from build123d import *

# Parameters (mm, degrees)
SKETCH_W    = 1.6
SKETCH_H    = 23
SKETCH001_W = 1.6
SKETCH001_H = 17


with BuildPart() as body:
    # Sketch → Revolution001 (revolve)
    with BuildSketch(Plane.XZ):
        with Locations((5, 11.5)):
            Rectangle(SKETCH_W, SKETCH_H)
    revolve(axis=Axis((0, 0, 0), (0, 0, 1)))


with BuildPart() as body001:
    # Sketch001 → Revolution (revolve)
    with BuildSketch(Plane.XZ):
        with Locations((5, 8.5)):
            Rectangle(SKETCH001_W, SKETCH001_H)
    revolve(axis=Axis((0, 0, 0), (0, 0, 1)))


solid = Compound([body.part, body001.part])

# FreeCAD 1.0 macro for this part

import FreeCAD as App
import Part
import Sketcher


def add_polygon(sketch, points):
    """Adds a closed chain of lines whose ends are joined by coincident constraints."""
    first, n = sketch.GeometryCount, len(points)
    for a, b in zip(points, points[1:] + points[:1]):
        sketch.addGeometry(Part.LineSegment(App.Vector(*a, 0), App.Vector(*b, 0)), False)
    for i in range(n):
        sketch.addConstraint(Sketcher.Constraint("Coincident", first + i, 2, first + (i + 1) % n, 1))

doc = App.newDocument("Part")
body = doc.addObject("PartDesign::Body", "Body")

# Sketch on XZ plane
sketch1 = body.newObject("Sketcher::SketchObject", "Sketch")
sketch1.AttachmentSupport = (doc.getObject("XZ_Plane"), [""])
sketch1.MapMode = "FlatFace"
add_polygon(sketch1, [(4.2, 23), (4.2, 0), (5.8, 0), (5.8, 23)])  # lines 0-3
sketch1.addConstraint([
    Sketcher.Constraint("Vertical", 0),
    Sketcher.Constraint("Horizontal", 1),
    Sketcher.Constraint("Vertical", 2),
    Sketcher.Constraint("Horizontal", 3),
    Sketcher.Constraint("PointOnObject", 0, 2, -1),
    Sketcher.Constraint("DistanceY", 0, 2, 0, 1, 23.0),
    Sketcher.Constraint("DistanceX", 1, 1, 1, 2, 1.6),
    Sketcher.Constraint("DistanceX", -1, 1, 0, 2, 4.2),
])
revolution = body.newObject("PartDesign::Revolution", "Revolution")
revolution.Profile = sketch1
revolution.ReferenceAxis = (sketch1, ["V_Axis"])
revolution.Angle = 360
body2 = doc.addObject("PartDesign::Body", "Body001")

# Sketch on XZ plane
sketch2 = body2.newObject("Sketcher::SketchObject", "Sketch001")
sketch2.AttachmentSupport = (doc.getObject("XZ_Plane001"), [""])
sketch2.MapMode = "FlatFace"
add_polygon(sketch2, [(4.2, 17), (4.2, 0), (5.8, 0), (5.8, 17)])  # lines 0-3
sketch2.addConstraint([
    Sketcher.Constraint("Vertical", 0),
    Sketcher.Constraint("Horizontal", 1),
    Sketcher.Constraint("Vertical", 2),
    Sketcher.Constraint("Horizontal", 3),
    Sketcher.Constraint("PointOnObject", 0, 2, -1),
    Sketcher.Constraint("DistanceY", 0, 2, 0, 1, 17.0),
    Sketcher.Constraint("DistanceX", 1, 1, 1, 2, 1.6),
    Sketcher.Constraint("DistanceX", -1, 1, 0, 2, 4.2),
])
revolution2 = body2.newObject("PartDesign::Revolution", "Revolution001")
revolution2.Profile = sketch2
revolution2.ReferenceAxis = (sketch2, ["V_Axis"])
revolution2.Angle = 360

doc.recompute()
